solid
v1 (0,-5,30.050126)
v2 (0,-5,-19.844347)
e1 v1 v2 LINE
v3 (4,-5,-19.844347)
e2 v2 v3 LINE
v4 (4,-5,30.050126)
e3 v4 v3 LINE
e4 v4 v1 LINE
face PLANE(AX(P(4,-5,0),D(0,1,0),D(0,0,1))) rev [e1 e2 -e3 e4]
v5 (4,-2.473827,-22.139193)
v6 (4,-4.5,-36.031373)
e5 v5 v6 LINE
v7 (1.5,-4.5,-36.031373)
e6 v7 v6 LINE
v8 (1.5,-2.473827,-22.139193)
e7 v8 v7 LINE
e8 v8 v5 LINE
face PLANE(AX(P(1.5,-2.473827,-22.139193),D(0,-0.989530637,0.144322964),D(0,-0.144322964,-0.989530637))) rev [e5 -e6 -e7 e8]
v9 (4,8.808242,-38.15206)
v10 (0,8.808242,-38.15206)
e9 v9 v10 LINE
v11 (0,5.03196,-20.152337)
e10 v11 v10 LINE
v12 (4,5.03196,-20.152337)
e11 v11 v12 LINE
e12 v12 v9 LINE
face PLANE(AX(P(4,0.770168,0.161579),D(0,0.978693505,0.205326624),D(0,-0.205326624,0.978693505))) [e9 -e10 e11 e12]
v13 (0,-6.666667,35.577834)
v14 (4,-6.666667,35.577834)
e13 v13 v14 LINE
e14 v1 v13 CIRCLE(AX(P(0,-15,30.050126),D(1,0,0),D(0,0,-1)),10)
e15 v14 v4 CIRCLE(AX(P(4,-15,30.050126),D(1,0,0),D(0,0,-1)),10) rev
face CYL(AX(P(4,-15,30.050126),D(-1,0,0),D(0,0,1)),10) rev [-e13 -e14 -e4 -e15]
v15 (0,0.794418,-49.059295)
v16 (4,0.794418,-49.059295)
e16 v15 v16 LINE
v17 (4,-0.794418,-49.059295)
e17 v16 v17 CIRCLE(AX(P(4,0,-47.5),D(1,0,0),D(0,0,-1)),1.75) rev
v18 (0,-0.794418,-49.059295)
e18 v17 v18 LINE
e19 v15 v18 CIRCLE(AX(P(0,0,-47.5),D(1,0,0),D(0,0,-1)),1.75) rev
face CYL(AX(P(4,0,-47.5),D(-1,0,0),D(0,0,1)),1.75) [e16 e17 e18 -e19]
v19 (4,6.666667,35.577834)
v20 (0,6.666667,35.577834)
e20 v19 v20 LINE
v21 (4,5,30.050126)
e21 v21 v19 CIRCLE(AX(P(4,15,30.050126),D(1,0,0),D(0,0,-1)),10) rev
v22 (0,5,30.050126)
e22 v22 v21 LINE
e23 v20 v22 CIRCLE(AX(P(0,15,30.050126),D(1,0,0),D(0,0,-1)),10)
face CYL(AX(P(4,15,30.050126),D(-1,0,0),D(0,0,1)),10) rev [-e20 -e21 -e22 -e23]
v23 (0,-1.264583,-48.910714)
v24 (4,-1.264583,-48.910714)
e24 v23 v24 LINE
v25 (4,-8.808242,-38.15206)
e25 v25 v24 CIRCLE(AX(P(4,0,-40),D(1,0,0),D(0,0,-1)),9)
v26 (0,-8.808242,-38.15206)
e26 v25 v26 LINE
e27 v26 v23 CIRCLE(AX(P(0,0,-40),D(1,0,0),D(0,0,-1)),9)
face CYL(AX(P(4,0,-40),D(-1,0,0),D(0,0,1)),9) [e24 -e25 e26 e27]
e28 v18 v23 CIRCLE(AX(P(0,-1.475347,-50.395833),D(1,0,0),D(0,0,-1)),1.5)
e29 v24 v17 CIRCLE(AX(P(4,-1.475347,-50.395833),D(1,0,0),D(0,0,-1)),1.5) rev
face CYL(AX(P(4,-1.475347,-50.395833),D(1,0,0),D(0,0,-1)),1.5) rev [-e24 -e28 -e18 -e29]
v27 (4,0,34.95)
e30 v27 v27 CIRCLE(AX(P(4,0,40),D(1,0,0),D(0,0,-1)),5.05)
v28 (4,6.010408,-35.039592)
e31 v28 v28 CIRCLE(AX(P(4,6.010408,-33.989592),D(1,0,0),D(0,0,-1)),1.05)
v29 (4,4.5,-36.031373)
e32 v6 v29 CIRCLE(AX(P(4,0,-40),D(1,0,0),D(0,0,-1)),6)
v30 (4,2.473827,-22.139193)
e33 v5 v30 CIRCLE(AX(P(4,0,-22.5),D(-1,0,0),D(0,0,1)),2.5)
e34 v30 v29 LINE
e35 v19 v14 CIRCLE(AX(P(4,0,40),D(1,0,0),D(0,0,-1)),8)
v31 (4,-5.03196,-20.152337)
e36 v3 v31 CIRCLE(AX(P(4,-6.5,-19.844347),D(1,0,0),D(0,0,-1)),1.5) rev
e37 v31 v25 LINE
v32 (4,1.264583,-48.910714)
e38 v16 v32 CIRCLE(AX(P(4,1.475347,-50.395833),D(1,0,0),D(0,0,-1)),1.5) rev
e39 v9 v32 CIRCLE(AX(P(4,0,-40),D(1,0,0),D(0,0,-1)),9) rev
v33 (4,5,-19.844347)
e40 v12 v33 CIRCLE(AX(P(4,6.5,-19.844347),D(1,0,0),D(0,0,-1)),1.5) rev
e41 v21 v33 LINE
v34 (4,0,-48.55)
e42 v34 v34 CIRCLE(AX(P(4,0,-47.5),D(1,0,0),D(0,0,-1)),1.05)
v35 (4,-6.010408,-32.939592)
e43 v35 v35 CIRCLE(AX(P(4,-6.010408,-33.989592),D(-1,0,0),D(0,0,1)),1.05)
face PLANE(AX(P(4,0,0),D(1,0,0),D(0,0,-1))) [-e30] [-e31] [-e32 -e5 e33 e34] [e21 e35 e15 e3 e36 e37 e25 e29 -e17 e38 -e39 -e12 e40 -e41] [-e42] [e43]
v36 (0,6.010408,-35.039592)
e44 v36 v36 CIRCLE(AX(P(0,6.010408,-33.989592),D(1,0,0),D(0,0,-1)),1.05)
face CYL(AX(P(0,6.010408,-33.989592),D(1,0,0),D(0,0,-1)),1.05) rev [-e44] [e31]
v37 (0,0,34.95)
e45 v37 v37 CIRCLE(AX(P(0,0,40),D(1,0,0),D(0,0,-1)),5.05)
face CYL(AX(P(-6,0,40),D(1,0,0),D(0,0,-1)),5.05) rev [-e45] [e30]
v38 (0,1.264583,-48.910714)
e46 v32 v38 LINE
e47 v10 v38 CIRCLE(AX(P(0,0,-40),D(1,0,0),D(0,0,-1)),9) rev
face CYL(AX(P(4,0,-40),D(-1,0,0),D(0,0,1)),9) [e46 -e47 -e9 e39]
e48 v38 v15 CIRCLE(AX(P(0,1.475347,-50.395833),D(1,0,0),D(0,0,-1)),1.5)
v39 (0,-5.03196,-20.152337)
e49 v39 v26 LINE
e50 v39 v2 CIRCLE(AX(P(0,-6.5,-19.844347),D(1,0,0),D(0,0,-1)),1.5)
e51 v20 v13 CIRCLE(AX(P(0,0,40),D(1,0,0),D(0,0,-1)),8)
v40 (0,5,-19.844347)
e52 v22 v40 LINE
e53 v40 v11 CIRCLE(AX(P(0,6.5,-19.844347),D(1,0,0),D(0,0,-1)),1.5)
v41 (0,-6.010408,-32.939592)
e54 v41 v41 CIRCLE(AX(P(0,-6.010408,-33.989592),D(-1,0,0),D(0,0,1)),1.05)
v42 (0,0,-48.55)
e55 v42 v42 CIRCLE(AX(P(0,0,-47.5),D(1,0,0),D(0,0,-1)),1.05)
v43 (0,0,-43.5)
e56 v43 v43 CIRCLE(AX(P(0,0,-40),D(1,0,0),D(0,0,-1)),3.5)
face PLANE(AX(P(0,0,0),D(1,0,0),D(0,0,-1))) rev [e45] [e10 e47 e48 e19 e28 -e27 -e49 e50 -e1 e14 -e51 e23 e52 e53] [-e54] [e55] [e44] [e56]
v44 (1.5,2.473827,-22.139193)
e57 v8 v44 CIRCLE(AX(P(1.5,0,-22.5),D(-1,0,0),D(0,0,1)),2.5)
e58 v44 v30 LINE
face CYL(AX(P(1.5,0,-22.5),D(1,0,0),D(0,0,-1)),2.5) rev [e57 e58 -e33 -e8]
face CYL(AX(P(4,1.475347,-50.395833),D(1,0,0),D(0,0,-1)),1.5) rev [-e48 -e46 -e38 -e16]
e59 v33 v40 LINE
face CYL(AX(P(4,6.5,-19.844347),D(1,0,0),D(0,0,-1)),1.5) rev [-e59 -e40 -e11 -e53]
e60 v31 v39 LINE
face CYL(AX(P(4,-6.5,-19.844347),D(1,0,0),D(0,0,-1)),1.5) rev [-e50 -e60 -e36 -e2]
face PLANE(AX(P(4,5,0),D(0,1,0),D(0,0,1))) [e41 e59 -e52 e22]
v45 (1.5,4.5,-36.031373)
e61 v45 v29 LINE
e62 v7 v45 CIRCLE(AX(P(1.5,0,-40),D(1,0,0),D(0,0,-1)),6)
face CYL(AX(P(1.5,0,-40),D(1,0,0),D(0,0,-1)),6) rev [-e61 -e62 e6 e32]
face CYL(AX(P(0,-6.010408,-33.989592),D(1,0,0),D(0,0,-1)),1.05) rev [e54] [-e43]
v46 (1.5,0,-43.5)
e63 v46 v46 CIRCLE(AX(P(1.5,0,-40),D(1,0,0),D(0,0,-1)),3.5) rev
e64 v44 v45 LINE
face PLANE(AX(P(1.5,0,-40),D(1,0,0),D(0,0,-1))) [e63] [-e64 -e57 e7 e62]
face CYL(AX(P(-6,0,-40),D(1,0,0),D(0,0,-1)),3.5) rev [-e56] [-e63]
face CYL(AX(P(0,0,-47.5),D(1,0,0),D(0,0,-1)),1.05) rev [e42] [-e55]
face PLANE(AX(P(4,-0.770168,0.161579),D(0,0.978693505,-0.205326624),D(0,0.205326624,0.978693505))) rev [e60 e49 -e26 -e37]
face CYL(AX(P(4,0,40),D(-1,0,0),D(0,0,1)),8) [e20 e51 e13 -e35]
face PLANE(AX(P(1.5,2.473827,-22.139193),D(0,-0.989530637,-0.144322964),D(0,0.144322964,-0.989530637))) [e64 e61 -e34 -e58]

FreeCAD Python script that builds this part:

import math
import FreeCAD as App
import Part
import Sketcher
Q = App.Units.Quantity


def edges_at(feature, points):
    """Names of the edges that pass closest to the given points."""
    edges = feature.Shape.Edges
    near = lambda p: min(range(len(edges)), key=lambda i: edges[i].distToShape(Part.Vertex(*p))[0])
    return sorted({f"Edge{near(p) + 1}" for p in points})

doc = App.newDocument("Part")
body = doc.addObject("PartDesign::Body", "Body")

# Sketch on YZ plane
sketch1 = body.newObject("Sketcher::SketchObject", "Sketch")
sketch1.AttachmentSupport = (doc.getObject("YZ_Plane"), [""])
sketch1.MapMode = "FlatFace"
sketch1.addGeometry(Part.LineSegment(App.Vector(5, -20, 0), App.Vector(5, 33.755002, 0)), False)
sketch1.addGeometry(Part.ArcOfCircle(Part.Circle(App.Vector(0, 40, 0), App.Vector(0, 0, 1), 8), math.radians(-51.317813), math.radians(231.317813)), False)
sketch1.addGeometry(Part.LineSegment(App.Vector(-5, 33.755002, 0), App.Vector(-5, -20, 0)), False)
sketch1.addGeometry(Part.LineSegment(App.Vector(-5, -20, 0), App.Vector(-8.808242, -38.15206, 0)), False)
sketch1.addGeometry(Part.ArcOfCircle(Part.Circle(App.Vector(0, -40, 0), App.Vector(0, 0, 1), 9), math.radians(168.15138), math.radians(263.710726)), False)
sketch1.addGeometry(Part.ArcOfCircle(Part.Circle(App.Vector(0, -47.5, 0), App.Vector(0, 0, 1), 1.75), math.radians(-124.290626), math.radians(-55.709374)), False)
sketch1.addGeometry(Part.ArcOfCircle(Part.Circle(App.Vector(0, -40, 0), App.Vector(0, 0, 1), 9), math.radians(-83.710726), math.radians(11.84862)), False)
sketch1.addGeometry(Part.LineSegment(App.Vector(8.808242, -38.15206, 0), App.Vector(5, -20, 0)), False)
sketch1.addConstraint(Sketcher.Constraint("Coincident", 0, 2, 1, 1))
sketch1.addConstraint(Sketcher.Constraint("Coincident", 1, 2, 2, 1))
sketch1.addConstraint(Sketcher.Constraint("Coincident", 2, 2, 3, 1))
sketch1.addConstraint(Sketcher.Constraint("Tangent", 3, 2, 4, 1))
sketch1.addConstraint(Sketcher.Constraint("Coincident", 4, 2, 5, 1))
sketch1.addConstraint(Sketcher.Constraint("Coincident", 5, 2, 6, 1))
sketch1.addConstraint(Sketcher.Constraint("Tangent", 6, 2, 7, 1))
sketch1.addConstraint(Sketcher.Constraint("Coincident", 7, 2, 0, 1))
sketch1.addConstraint(Sketcher.Constraint("Vertical", 0))
sketch1.addConstraint(Sketcher.Constraint("Vertical", 2))
sketch1.addConstraint(Sketcher.Constraint("Coincident", 6, 3, 4, 3))
sketch1.addConstraint(Sketcher.Constraint("Equal", 4, 6))
sketch1.addConstraint(Sketcher.Constraint("Symmetric", 1, 3, 4, 3, -1, 1))
sketch1.addConstraint(Sketcher.Constraint("Symmetric", 0, 2, 1, 2, -2))
sketch1.addConstraint(Sketcher.Constraint("PointOnObject", 5, 3, -2))
sketch1.addConstraint(Sketcher.Constraint("Horizontal", 3, 2, 6, 2))
sketch1.addConstraint(Sketcher.Constraint("Radius", 1, Q("8 mm")))
sketch1.addConstraint(Sketcher.Constraint("Radius", 4, Q("9 mm")))
sketch1.addConstraint(Sketcher.Constraint("Radius", 5, Q("1.75 mm")))
sketch1.addConstraint(Sketcher.Constraint("DistanceY", -1, 1, 1, 3, Q("40 mm")))
sketch1.addConstraint(Sketcher.Constraint("DistanceX", -1, 1, 0, 2, Q("5 mm")))
sketch1.addConstraint(Sketcher.Constraint("DistanceY", 2, 2, -1, 1, Q("20 mm")))
sketch1.addConstraint(Sketcher.Constraint("DistanceY", 5, 3, -1, 1, Q("47.5 mm")))
pad1 = body.newObject("PartDesign::Pad", "Pad")
pad1.Profile = sketch1
pad1.Length = 4

# Sketch on YZ plane
sketch2 = body.newObject("Sketcher::SketchObject", "Sketch001")
sketch2.AttachmentSupport = (doc.getObject("YZ_Plane"), [""])
sketch2.MapMode = "FlatFace"
sketch2.AttachmentOffset = App.Placement(App.Vector(0, 0, 4), App.Rotation())
sketch2.addGeometry(Part.Circle(App.Vector(0, 40, 0), App.Vector(0, 0, 1), 5.05), False)
sketch2.addGeometry(Part.Circle(App.Vector(0, -40, 0), App.Vector(0, 0, 1), 3.5), False)
sketch2.addConstraint(Sketcher.Constraint("Symmetric", 0, 3, 1, 3, -1, 1))
sketch2.addConstraint(Sketcher.Constraint("PointOnObject", 0, 3, -2))
sketch2.addConstraint(Sketcher.Constraint("Diameter", 1, Q("7 mm")))
sketch2.addConstraint(Sketcher.Constraint("Diameter", 0, Q("10.1 mm")))
sketch2.addConstraint(Sketcher.Constraint("DistanceY", -1, 1, 0, 3, Q("40 mm")))
pocket1 = body.newObject("PartDesign::Pocket", "Pocket")
pocket1.Profile = sketch2
pocket1.Length = 10

# Sketch on YZ plane
sketch3 = body.newObject("Sketcher::SketchObject", "Sketch002")
sketch3.AttachmentSupport = (doc.getObject("YZ_Plane"), [""])
sketch3.MapMode = "FlatFace"
sketch3.AttachmentOffset = App.Placement(App.Vector(0, 0, 4), App.Rotation())
sketch3.addGeometry(Part.LineSegment(App.Vector(4.5, -36.031373, 0), App.Vector(2.473827, -22.139193, 0)), False)
sketch3.addGeometry(Part.ArcOfCircle(Part.Circle(App.Vector(0, -22.5, 0), App.Vector(0, 0, 1), 2.5), math.radians(8.298076), math.radians(171.701924)), False)
sketch3.addGeometry(Part.LineSegment(App.Vector(-2.473827, -22.139193, 0), App.Vector(-4.5, -36.031373, 0)), False)
sketch3.addGeometry(Part.ArcOfCircle(Part.Circle(App.Vector(0, -40, 0), App.Vector(0, 0, 1), 6), math.radians(138.590378), math.radians(401.409622)), False)
sketch3.addConstraint(Sketcher.Constraint("Tangent", 0, 2, 1, 1))
sketch3.addConstraint(Sketcher.Constraint("Tangent", 1, 2, 2, 1))
sketch3.addConstraint(Sketcher.Constraint("Coincident", 2, 2, 3, 1))
sketch3.addConstraint(Sketcher.Constraint("Coincident", 3, 2, 0, 1))
sketch3.addConstraint(Sketcher.Constraint("Symmetric", 0, 2, 1, 2, -2))
sketch3.addConstraint(Sketcher.Constraint("PointOnObject", 3, 3, -2))
sketch3.addConstraint(Sketcher.Constraint("Radius", 3, Q("6 mm")))
sketch3.addConstraint(Sketcher.Constraint("Radius", 1, Q("2.5 mm")))
sketch3.addConstraint(Sketcher.Constraint("DistanceY", 3, 3, -1, 1, Q("40 mm")))
sketch3.addConstraint(Sketcher.Constraint("DistanceX", 2, 2, 3, 2, Q("9 mm")))
sketch3.addConstraint(Sketcher.Constraint("DistanceY", 1, 3, -1, 1, Q("22.5 mm")))
pocket2 = body.newObject("PartDesign::Pocket", "Pocket001")
pocket2.Profile = sketch3
pocket2.Length = 2.5

# Sketch on YZ plane
sketch4 = body.newObject("Sketcher::SketchObject", "Sketch003")
sketch4.AttachmentSupport = (doc.getObject("YZ_Plane"), [""])
sketch4.MapMode = "FlatFace"
sketch4.AttachmentOffset = App.Placement(App.Vector(0, 0, 4), App.Rotation())
sketch4.addGeometry(Part.Circle(App.Vector(6.010408, -33.989592, 0), App.Vector(0, 0, 1), 1.05), False)
sketch4.addGeometry(Part.Circle(App.Vector(-6.010408, -33.989592, 0), App.Vector(0, 0, 1), 1.05), False)
sketch4.addGeometry(Part.Circle(App.Vector(0, -47.5, 0), App.Vector(0, 0, 1), 1.05), False)
sketch4.addConstraint(Sketcher.Constraint("Equal", 0, 1))
sketch4.addConstraint(Sketcher.Constraint("Equal", 1, 2))
sketch4.addConstraint(Sketcher.Constraint("Symmetric", 0, 3, 1, 3, -2))
sketch4.addConstraint(Sketcher.Constraint("PointOnObject", 2, 3, -2))
sketch4.addConstraint(Sketcher.Constraint("Diameter", 0, Q("2.1 mm")))
sketch4.addConstraint(Sketcher.Constraint("DistanceY", 2, 3, -1, 1, Q("47.5 mm")))
sketch4.addConstraint(Sketcher.Constraint("DistanceX", -1, 1, 0, 3, Q("6.010408 mm")))
sketch4.addConstraint(Sketcher.Constraint("DistanceY", 0, 3, -1, 1, Q("33.989592 mm")))
pocket3 = body.newObject("PartDesign::Pocket", "Pocket002")
pocket3.Profile = sketch4
pocket3.Type = "ThroughAll"
doc.recompute()

fillet = body.newObject("PartDesign::Fillet", "Fillet")
fillet.Base = (pocket3, edges_at(pocket3, [
    (2, -0.986, -48.946),
    (2, -5, -20),
    (2, 5, -20),
    (2, 0.986, -48.946),
]))
fillet.Radius = 1.5
doc.recompute()

fillet2 = body.newObject("PartDesign::Fillet", "Fillet001")
fillet2.Base = (fillet, edges_at(fillet, [(2, -5, 33.755), (2, 5, 33.755)]))
fillet2.Radius = 10

doc.recompute()
